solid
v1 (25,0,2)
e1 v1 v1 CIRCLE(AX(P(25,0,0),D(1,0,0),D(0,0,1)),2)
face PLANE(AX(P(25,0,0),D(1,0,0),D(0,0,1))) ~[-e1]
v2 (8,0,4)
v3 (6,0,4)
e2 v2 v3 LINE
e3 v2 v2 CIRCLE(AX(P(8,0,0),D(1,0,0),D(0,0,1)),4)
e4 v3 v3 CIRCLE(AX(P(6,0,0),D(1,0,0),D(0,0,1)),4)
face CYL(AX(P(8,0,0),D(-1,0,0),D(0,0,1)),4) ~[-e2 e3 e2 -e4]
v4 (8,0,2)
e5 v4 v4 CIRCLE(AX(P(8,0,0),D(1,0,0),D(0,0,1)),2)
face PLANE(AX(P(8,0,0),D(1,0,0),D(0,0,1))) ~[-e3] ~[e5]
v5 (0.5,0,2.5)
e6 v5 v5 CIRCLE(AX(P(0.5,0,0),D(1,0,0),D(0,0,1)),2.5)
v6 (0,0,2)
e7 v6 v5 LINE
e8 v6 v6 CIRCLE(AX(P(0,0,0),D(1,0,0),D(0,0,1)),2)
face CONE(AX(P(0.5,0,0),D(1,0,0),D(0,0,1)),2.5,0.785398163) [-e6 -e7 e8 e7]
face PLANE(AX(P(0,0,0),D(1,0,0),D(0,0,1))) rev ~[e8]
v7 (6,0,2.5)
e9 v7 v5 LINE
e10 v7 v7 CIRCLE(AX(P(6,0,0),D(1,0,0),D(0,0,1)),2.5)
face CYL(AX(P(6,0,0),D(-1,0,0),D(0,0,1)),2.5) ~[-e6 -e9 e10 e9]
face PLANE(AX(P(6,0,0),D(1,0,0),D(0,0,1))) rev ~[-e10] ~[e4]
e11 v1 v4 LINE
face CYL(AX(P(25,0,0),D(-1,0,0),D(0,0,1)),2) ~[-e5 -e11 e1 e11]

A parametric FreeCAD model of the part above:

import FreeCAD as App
import Part
import Sketcher


def edges_at(feature, points):
    """Names of the edges that pass closest to the given points."""
    edges = feature.Shape.Edges
    near = lambda p: min(range(len(edges)), key=lambda i: edges[i].distToShape(Part.Vertex(*p))[0])
    return sorted({f"Edge{near(p) + 1}" for p in points})

doc = App.newDocument("Part")
body = doc.addObject("PartDesign::Body", "Body")

sketch1 = body.newObject("Sketcher::SketchObject", "Sketch")
sketch1.AttachmentSupport = (doc.getObject("XZ_Plane"), [""])
sketch1.MapMode = "FlatFace"
sketch1.addGeometry(Part.LineSegment(App.Vector(0, 2.5, 0), App.Vector(0, 0, 0)), False)
sketch1.addGeometry(Part.LineSegment(App.Vector(0, 0, 0), App.Vector(25, 0, 0)), False)
sketch1.addGeometry(Part.LineSegment(App.Vector(25, 0, 0), App.Vector(25, 2, 0)), False)
sketch1.addGeometry(Part.LineSegment(App.Vector(25, 2, 0), App.Vector(8, 2, 0)), False)
sketch1.addGeometry(Part.LineSegment(App.Vector(8, 2, 0), App.Vector(8, 4, 0)), False)
sketch1.addGeometry(Part.LineSegment(App.Vector(8, 4, 0), App.Vector(6, 4, 0)), False)
sketch1.addGeometry(Part.LineSegment(App.Vector(6, 4, 0), App.Vector(6, 2.5, 0)), False)
sketch1.addGeometry(Part.LineSegment(App.Vector(6, 2.5, 0), App.Vector(0, 2.5, 0)), False)
sketch1.addConstraint(Sketcher.Constraint("Coincident", 0, 2, 1, 1))
sketch1.addConstraint(Sketcher.Constraint("Coincident", 1, 2, 2, 1))
sketch1.addConstraint(Sketcher.Constraint("Coincident", 2, 2, 3, 1))
sketch1.addConstraint(Sketcher.Constraint("Coincident", 3, 2, 4, 1))
sketch1.addConstraint(Sketcher.Constraint("Coincident", 4, 2, 5, 1))
sketch1.addConstraint(Sketcher.Constraint("Coincident", 5, 2, 6, 1))
sketch1.addConstraint(Sketcher.Constraint("Coincident", 6, 2, 7, 1))
sketch1.addConstraint(Sketcher.Constraint("Coincident", 7, 2, 0, 1))
sketch1.addConstraint(Sketcher.Constraint("Vertical", 0))
sketch1.addConstraint(Sketcher.Constraint("Horizontal", 1))
sketch1.addConstraint(Sketcher.Constraint("Vertical", 2))
sketch1.addConstraint(Sketcher.Constraint("Horizontal", 3))
sketch1.addConstraint(Sketcher.Constraint("Vertical", 4))
sketch1.addConstraint(Sketcher.Constraint("Horizontal", 5))
sketch1.addConstraint(Sketcher.Constraint("Vertical", 6))
sketch1.addConstraint(Sketcher.Constraint("Horizontal", 7))
sketch1.addConstraint(Sketcher.Constraint("Coincident", 0, 2, -1, 1))
sketch1.addConstraint(Sketcher.Constraint("Equal", 5, 2))
sketch1.addConstraint(Sketcher.Constraint("Equal", 2, 4))
sketch1.addConstraint(Sketcher.Constraint("DistanceX", 1, 1, 1, 2, 25.0))
sketch1.addConstraint(Sketcher.Constraint("DistanceX", 3, 2, 3, 1, 17.0))
sketch1.addConstraint(Sketcher.Constraint("DistanceX", 5, 2, 5, 1, 2.0))
sketch1.addConstraint(Sketcher.Constraint("DistanceY", 0, 2, 0, 1, 2.5))
revolution = body.newObject("PartDesign::Revolution", "Revolution")
revolution.Profile = sketch1
revolution.ReferenceAxis = (sketch1, ["H_Axis"])
revolution.Angle = 360
doc.recompute()

chamfer = body.newObject("PartDesign::Chamfer", "Chamfer")
chamfer.Base = (revolution, edges_at(revolution, [(0, 0, -2.5)]))
chamfer.Size = 0.5

doc.recompute()
